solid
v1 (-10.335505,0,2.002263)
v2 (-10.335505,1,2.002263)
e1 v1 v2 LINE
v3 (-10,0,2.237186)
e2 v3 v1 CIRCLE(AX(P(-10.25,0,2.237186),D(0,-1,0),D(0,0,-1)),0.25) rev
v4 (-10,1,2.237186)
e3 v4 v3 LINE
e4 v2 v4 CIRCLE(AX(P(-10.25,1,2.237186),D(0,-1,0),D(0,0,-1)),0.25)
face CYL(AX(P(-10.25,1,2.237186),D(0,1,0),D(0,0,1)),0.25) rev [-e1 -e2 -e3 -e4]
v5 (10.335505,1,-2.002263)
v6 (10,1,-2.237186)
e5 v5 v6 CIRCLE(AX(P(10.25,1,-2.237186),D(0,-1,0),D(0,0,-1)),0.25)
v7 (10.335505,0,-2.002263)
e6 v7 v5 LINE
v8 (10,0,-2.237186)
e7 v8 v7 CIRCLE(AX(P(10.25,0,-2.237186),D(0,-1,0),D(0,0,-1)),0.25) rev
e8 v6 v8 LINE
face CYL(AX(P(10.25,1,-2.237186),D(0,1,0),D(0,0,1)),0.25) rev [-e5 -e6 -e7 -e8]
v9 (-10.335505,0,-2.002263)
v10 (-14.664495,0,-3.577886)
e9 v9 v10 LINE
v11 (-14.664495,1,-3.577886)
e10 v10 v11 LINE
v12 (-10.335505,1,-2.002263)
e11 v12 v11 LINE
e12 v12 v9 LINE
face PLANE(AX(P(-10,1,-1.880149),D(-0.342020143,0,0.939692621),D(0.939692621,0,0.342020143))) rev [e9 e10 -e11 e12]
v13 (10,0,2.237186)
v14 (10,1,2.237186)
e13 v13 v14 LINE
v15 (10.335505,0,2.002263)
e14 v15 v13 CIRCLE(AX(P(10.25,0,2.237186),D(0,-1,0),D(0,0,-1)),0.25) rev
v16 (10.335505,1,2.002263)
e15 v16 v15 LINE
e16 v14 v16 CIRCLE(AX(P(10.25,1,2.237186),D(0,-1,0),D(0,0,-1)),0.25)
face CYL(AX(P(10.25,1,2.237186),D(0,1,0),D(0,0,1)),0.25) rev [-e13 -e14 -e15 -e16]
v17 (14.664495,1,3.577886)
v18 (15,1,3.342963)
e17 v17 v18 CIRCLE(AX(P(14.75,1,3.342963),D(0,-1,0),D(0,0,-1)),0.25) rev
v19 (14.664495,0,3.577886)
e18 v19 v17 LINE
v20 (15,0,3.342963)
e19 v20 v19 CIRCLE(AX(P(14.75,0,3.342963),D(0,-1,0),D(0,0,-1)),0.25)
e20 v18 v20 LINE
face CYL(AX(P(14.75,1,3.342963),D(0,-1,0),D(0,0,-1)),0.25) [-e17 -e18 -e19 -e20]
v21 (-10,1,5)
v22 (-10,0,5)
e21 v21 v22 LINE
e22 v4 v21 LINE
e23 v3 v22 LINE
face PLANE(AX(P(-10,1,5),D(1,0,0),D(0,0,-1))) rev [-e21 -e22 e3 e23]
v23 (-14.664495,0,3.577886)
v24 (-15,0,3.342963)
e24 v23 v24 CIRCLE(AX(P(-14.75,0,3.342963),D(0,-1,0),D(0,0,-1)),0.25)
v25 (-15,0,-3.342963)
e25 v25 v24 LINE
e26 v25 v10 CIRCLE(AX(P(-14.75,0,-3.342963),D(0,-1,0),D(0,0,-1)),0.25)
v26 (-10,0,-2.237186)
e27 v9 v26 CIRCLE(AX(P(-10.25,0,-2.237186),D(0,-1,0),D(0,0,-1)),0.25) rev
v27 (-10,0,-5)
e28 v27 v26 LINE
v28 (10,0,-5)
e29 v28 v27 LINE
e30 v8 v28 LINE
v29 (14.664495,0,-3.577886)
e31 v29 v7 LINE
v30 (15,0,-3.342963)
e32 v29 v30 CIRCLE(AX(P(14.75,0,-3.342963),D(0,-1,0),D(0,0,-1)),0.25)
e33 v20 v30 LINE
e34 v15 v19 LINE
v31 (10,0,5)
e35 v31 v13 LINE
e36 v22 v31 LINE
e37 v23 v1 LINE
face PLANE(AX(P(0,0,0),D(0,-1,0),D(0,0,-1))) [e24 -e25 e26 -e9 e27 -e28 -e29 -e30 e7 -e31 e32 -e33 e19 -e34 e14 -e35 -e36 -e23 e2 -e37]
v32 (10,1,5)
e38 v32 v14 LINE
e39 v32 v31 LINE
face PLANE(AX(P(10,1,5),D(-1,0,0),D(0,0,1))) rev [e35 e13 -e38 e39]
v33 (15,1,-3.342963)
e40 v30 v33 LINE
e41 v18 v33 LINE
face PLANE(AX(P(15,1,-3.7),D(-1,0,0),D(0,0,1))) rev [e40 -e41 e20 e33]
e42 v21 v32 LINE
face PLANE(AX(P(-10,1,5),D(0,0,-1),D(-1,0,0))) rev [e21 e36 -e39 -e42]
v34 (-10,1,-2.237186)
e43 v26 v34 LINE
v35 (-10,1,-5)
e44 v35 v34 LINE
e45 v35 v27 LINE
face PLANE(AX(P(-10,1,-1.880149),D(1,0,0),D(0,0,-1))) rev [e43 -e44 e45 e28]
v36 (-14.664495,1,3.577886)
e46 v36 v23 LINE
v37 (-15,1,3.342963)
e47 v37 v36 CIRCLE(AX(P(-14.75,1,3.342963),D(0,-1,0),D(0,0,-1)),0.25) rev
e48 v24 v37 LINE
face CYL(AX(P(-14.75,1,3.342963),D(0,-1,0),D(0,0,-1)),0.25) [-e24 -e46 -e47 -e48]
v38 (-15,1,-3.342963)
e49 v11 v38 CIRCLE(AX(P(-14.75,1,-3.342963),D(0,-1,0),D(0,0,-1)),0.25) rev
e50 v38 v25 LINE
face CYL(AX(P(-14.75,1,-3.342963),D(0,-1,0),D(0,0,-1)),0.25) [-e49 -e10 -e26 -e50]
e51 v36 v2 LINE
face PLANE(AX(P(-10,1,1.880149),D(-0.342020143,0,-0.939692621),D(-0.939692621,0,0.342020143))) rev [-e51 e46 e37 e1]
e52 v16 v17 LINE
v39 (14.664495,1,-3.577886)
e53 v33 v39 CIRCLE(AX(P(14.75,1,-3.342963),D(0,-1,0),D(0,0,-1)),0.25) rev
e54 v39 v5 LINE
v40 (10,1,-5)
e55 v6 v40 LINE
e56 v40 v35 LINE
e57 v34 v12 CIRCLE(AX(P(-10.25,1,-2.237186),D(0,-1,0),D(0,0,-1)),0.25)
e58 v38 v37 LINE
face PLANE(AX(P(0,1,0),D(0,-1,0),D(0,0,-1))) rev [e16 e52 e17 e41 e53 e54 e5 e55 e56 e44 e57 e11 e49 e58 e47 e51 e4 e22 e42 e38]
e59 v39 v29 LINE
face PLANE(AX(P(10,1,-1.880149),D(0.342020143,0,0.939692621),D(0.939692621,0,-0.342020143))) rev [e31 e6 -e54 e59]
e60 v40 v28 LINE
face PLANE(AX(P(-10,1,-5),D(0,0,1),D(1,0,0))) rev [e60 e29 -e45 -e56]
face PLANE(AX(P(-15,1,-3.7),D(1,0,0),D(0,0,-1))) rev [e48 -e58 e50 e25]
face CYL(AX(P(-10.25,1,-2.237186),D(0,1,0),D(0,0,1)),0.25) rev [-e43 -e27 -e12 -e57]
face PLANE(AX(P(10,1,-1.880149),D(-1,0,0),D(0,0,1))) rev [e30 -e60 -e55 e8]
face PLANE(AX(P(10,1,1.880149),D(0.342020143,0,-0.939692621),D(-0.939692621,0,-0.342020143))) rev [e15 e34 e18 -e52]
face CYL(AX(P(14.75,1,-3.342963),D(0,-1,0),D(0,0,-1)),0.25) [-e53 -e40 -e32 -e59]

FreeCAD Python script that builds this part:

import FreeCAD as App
import Part
import Sketcher
from FreeCAD import Vector
Q = App.Units.Quantity


def edges_at(feature, points):
    """Names of the edges that pass closest to the given points."""
    edges = feature.Shape.Edges
    near = lambda p: min(range(len(edges)), key=lambda i: edges[i].distToShape(Part.Vertex(*p))[0])
    return sorted({f"Edge{near(p) + 1}" for p in points})

doc = App.newDocument("Part")
body = doc.addObject("PartDesign::Body", "Body")

# Sketch on XZ plane
sketch1 = body.newObject("Sketcher::SketchObject", "Sketch")
sketch1.AttachmentSupport = (doc.getObject("XZ_Plane"), [""])
sketch1.MapMode = "FlatFace"
sketch1.addGeometry([
    Part.LineSegment(Vector(-10, -1.9, 0), Vector(-15, -3.7, 0)),  # 0
    Part.LineSegment(Vector(-15, -3.7, 0), Vector(-15, 3.7, 0)),  # 1
    Part.LineSegment(Vector(-15, 3.7, 0), Vector(-10, 1.9, 0)),  # 2
    Part.LineSegment(Vector(-10, 1.9, 0), Vector(-10, 5, 0)),  # 3
    Part.LineSegment(Vector(-10, 5, 0), Vector(10, 5, 0)),  # 4
    Part.LineSegment(Vector(10, 5, 0), Vector(10, 1.9, 0)),  # 5
    Part.LineSegment(Vector(10, 1.9, 0), Vector(15, 3.7, 0)),  # 6
    Part.LineSegment(Vector(15, 3.7, 0), Vector(15, -3.7, 0)),  # 7
    Part.LineSegment(Vector(15, -3.7, 0), Vector(10, -1.9, 0)),  # 8
    Part.LineSegment(Vector(10, -1.9, 0), Vector(10, -5, 0)),  # 9
    Part.LineSegment(Vector(10, -5, 0), Vector(-10, -5, 0)),  # 10
    Part.LineSegment(Vector(-10, -5, 0), Vector(-10, -1.9, 0)),  # 11
], False)
sketch1.addConstraint([
    Sketcher.Constraint("Coincident", 0, 2, 1, 1),
    Sketcher.Constraint("Coincident", 1, 2, 2, 1),
    Sketcher.Constraint("Coincident", 2, 2, 3, 1),
    Sketcher.Constraint("Coincident", 3, 2, 4, 1),
    Sketcher.Constraint("Coincident", 4, 2, 5, 1),
    Sketcher.Constraint("Coincident", 5, 2, 6, 1),
    Sketcher.Constraint("Coincident", 6, 2, 7, 1),
    Sketcher.Constraint("Coincident", 7, 2, 8, 1),
    Sketcher.Constraint("Coincident", 8, 2, 9, 1),
    Sketcher.Constraint("Coincident", 9, 2, 10, 1),
    Sketcher.Constraint("Coincident", 10, 2, 11, 1),
    Sketcher.Constraint("Coincident", 11, 2, 0, 1),
    Sketcher.Constraint("Vertical", 1),
    Sketcher.Constraint("Vertical", 3),
    Sketcher.Constraint("Horizontal", 4),
    Sketcher.Constraint("Vertical", 5),
    Sketcher.Constraint("Vertical", 7),
    Sketcher.Constraint("Vertical", 9),
    Sketcher.Constraint("Horizontal", 10),
    Sketcher.Constraint("Vertical", 11),
    Sketcher.Constraint("Symmetric", 0, 2, 6, 2, -1, 1),
    Sketcher.Constraint("Symmetric", 2, 2, 8, 2, -1, 1),
    Sketcher.Constraint("Symmetric", 4, 2, 10, 2, -1, 1),
    Sketcher.Constraint("Symmetric", 2, 2, 5, 2, -2),
    Sketcher.Constraint("Parallel", 0, 6),
    Sketcher.Constraint("Parallel", 2, 8),
    Sketcher.Constraint("Horizontal", 1, 2, 6, 2),
    Sketcher.Constraint("DistanceX", 4, 1, 4, 2, Q("20 mm")),
    Sketcher.Constraint("Angle", 0, Q("-160 deg")),
    Sketcher.Constraint("DistanceY", 1, 1, 1, 2, Q("7.4 mm")),
    Sketcher.Constraint("DistanceX", 0, 2, -1, 1, Q("15 mm")),
    Sketcher.Constraint("DistanceY", -1, 1, 3, 2, Q("5 mm")),
])
pad1 = body.newObject("PartDesign::Pad", "Pad")
pad1.Profile = sketch1
pad1.Length = 1
pad1.Reversed = True
doc.recompute()

fillet = body.newObject("PartDesign::Fillet", "Fillet")
fillet.Base = (pad1, edges_at(pad1, [
    (10, 0.5, -1.88),
    (15, 0.5, -3.7),
    (15, 0.5, 3.7),
    (10, 0.5, 1.88),
    (-10, 0.5, 1.88),
    (-15, 0.5, 3.7),
    (-15, 0.5, -3.7),
    (-10, 0.5, -1.88),
]))
fillet.Radius = 0.25

doc.recompute()
